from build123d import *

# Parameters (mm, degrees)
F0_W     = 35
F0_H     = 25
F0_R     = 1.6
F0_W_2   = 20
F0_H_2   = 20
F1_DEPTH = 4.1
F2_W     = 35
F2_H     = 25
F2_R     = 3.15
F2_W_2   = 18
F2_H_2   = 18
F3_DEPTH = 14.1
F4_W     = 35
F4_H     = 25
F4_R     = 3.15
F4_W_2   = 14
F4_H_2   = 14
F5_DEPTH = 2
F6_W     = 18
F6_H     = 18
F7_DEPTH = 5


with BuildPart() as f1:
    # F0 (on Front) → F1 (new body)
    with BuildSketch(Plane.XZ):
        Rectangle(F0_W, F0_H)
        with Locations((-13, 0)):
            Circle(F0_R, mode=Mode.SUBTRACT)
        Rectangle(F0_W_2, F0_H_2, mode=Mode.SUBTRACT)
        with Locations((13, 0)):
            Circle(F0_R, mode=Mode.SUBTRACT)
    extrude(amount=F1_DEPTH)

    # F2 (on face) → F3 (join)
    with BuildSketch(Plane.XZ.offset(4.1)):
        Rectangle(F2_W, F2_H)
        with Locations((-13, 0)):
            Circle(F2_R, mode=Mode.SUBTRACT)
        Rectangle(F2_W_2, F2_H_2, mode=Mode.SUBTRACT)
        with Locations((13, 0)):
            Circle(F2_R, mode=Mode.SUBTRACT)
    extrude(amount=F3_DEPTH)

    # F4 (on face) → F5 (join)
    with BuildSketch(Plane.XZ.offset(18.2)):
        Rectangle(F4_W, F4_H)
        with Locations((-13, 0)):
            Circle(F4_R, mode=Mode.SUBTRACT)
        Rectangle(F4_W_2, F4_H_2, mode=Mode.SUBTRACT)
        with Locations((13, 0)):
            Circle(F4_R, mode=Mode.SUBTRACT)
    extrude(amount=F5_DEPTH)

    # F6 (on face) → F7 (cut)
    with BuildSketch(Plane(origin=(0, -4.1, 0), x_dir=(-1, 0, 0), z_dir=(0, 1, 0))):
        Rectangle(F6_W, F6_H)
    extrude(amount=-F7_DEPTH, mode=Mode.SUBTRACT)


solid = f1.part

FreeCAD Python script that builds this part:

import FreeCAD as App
import Part
import Sketcher

V = App.Vector

doc = App.newDocument("Part")
params = doc.addObject("Spreadsheet::Sheet", "Params")
for row, (alias, value) in enumerate([
    ("sketch1_diameter", "3.2 mm"),
    ("sketch1_width", "35 mm"),
    ("sketch1_width2", "20 mm"),
    ("sketch1_height", "25 mm"),
    ("pad1_length", "4.1 mm"),
    ("sketch2_diameter", "6.3 mm"),
    ("sketch2_width", "35 mm"),
    ("sketch2_width2", "18 mm"),
    ("sketch2_height", "25 mm"),
    ("pad2_length", "14.1 mm"),
    ("sketch3_diameter", "6.3 mm"),
    ("sketch3_width", "35 mm"),
    ("sketch3_width2", "14 mm"),
    ("sketch3_height", "25 mm"),
    ("pad3_length", "2 mm"),
    ("sketch4_width", "18 mm"),
    ("pocket1_length", "5 mm"),
], start=1):
    params.set(f"A{row}", alias)
    params.set(f"B{row}", "=" + value)
    params.setAlias(f"B{row}", alias)

body = doc.addObject("PartDesign::Body", "Body")

sketch1 = body.newObject("Sketcher::SketchObject", "Sketch")
sketch1.AttachmentSupport = (doc.getObject("XZ_Plane"), [""])
sketch1.MapMode = "FlatFace"
sketch1.addGeometry([
    Part.LineSegment(V(-17.5, 12.5, 0), V(-17.5, -12.5, 0)),
    Part.LineSegment(V(-17.5, -12.5, 0), V(17.5, -12.5, 0)),
    Part.LineSegment(V(17.5, -12.5, 0), V(17.5, 12.5, 0)),
    Part.LineSegment(V(17.5, 12.5, 0), V(-17.5, 12.5, 0)),
    Part.Circle(V(-13, 0, 0), V(0, 0, 1), 1.6),
    Part.LineSegment(V(10, -10, 0), V(-10, -10, 0)),
    Part.LineSegment(V(-10, -10, 0), V(-10, 10, 0)),
    Part.LineSegment(V(-10, 10, 0), V(10, 10, 0)),
    Part.LineSegment(V(10, 10, 0), V(10, -10, 0)),
    Part.Circle(V(13, 0, 0), V(0, 0, 1), 1.6),
], False)
sketch1.addConstraint([
    Sketcher.Constraint("Coincident", 0, 2, 1, 1),
    Sketcher.Constraint("Coincident", 1, 2, 2, 1),
    Sketcher.Constraint("Coincident", 2, 2, 3, 1),
    Sketcher.Constraint("Coincident", 3, 2, 0, 1),
    Sketcher.Constraint("Coincident", 5, 2, 6, 1),
    Sketcher.Constraint("Coincident", 6, 2, 7, 1),
    Sketcher.Constraint("Coincident", 7, 2, 8, 1),
    Sketcher.Constraint("Coincident", 8, 2, 5, 1),
    Sketcher.Constraint("Vertical", 0),
    Sketcher.Constraint("Horizontal", 1),
    Sketcher.Constraint("Vertical", 2),
    Sketcher.Constraint("Horizontal", 3),
    Sketcher.Constraint("Horizontal", 5),
    Sketcher.Constraint("Vertical", 6),
    Sketcher.Constraint("Horizontal", 7),
    Sketcher.Constraint("Vertical", 8),
    Sketcher.Constraint("Equal", 4, 9),
    Sketcher.Constraint("Symmetric", 4, 3, 9, 3, -1, 1),
    Sketcher.Constraint("Symmetric", 0, 2, 2, 2, -1, 1),
    Sketcher.Constraint("Symmetric", 5, 2, 7, 2, -1, 1),
    Sketcher.Constraint("PointOnObject", 4, 3, -1),
    Sketcher.Constraint("Equal", 7, 6),
    Sketcher.Constraint("Diameter", 4, 3.2),
    Sketcher.Constraint("DistanceX", 1, 1, 1, 2, 35.0),
    Sketcher.Constraint("DistanceX", 5, 2, 5, 1, 20.0),
    Sketcher.Constraint("DistanceY", 0, 2, 0, 1, 25.0),
    Sketcher.Constraint("DistanceX", 4, 3, -1, 1, 13.0),
])
sketch1.setExpression("Constraints[22]", "Params.sketch1_diameter")
sketch1.setExpression("Constraints[23]", "Params.sketch1_width")
sketch1.setExpression("Constraints[24]", "Params.sketch1_width2")
sketch1.setExpression("Constraints[25]", "Params.sketch1_height")
pad1 = body.newObject("PartDesign::Pad", "Pad")
pad1.Profile = sketch1
pad1.setExpression("Length", "Params.pad1_length")

sketch2 = body.newObject("Sketcher::SketchObject", "Sketch001")
sketch2.AttachmentSupport = (doc.getObject("XZ_Plane"), [""])
sketch2.MapMode = "FlatFace"
sketch2.AttachmentOffset = App.Placement(V(0, 0, 4.1), App.Rotation())
sketch2.addGeometry([
    Part.LineSegment(V(-17.5, 12.5, 0), V(-17.5, -12.5, 0)),
    Part.LineSegment(V(-17.5, -12.5, 0), V(17.5, -12.5, 0)),
    Part.LineSegment(V(17.5, -12.5, 0), V(17.5, 12.5, 0)),
    Part.LineSegment(V(17.5, 12.5, 0), V(-17.5, 12.5, 0)),
    Part.Circle(V(-13, 0, 0), V(0, 0, 1), 3.1),
    Part.LineSegment(V(9, -9, 0), V(-9, -9, 0)),
    Part.LineSegment(V(-9, -9, 0), V(-9, 9, 0)),
    Part.LineSegment(V(-9, 9, 0), V(9, 9, 0)),
    Part.LineSegment(V(9, 9, 0), V(9, -9, 0)),
    Part.Circle(V(13, 0, 0), V(0, 0, 1), 3.1),
], False)
sketch2.addConstraint([
    Sketcher.Constraint("Coincident", 0, 2, 1, 1),
    Sketcher.Constraint("Coincident", 1, 2, 2, 1),
    Sketcher.Constraint("Coincident", 2, 2, 3, 1),
    Sketcher.Constraint("Coincident", 3, 2, 0, 1),
    Sketcher.Constraint("Coincident", 5, 2, 6, 1),
    Sketcher.Constraint("Coincident", 6, 2, 7, 1),
    Sketcher.Constraint("Coincident", 7, 2, 8, 1),
    Sketcher.Constraint("Coincident", 8, 2, 5, 1),
    Sketcher.Constraint("Vertical", 0),
    Sketcher.Constraint("Horizontal", 1),
    Sketcher.Constraint("Vertical", 2),
    Sketcher.Constraint("Horizontal", 3),
    Sketcher.Constraint("Horizontal", 5),
    Sketcher.Constraint("Vertical", 6),
    Sketcher.Constraint("Horizontal", 7),
    Sketcher.Constraint("Vertical", 8),
    Sketcher.Constraint("Equal", 4, 9),
    Sketcher.Constraint("Symmetric", 4, 3, 9, 3, -1, 1),
    Sketcher.Constraint("Symmetric", 0, 2, 2, 2, -1, 1),
    Sketcher.Constraint("Symmetric", 5, 2, 7, 2, -1, 1),
    Sketcher.Constraint("PointOnObject", 4, 3, -1),
    Sketcher.Constraint("Equal", 7, 6),
    Sketcher.Constraint("Diameter", 4, 6.3),
    Sketcher.Constraint("DistanceX", 1, 1, 1, 2, 35.0),
    Sketcher.Constraint("DistanceX", 5, 2, 5, 1, 18.0),
    Sketcher.Constraint("DistanceY", 0, 2, 0, 1, 25.0),
    Sketcher.Constraint("DistanceX", 4, 3, -1, 1, 13.0),
])
sketch2.setExpression("Constraints[22]", "Params.sketch2_diameter")
sketch2.setExpression("Constraints[23]", "Params.sketch2_width")
sketch2.setExpression("Constraints[24]", "Params.sketch2_width2")
sketch2.setExpression("Constraints[25]", "Params.sketch2_height")
pad2 = body.newObject("PartDesign::Pad", "Pad001")
pad2.Profile = sketch2
pad2.setExpression("Length", "Params.pad2_length")

sketch3 = body.newObject("Sketcher::SketchObject", "Sketch002")
sketch3.AttachmentSupport = (doc.getObject("XZ_Plane"), [""])
sketch3.MapMode = "FlatFace"
sketch3.AttachmentOffset = App.Placement(V(0, 0, 18.2), App.Rotation())
sketch3.addGeometry([
    Part.LineSegment(V(-17.5, 12.5, 0), V(-17.5, -12.5, 0)),
    Part.LineSegment(V(-17.5, -12.5, 0), V(17.5, -12.5, 0)),
    Part.LineSegment(V(17.5, -12.5, 0), V(17.5, 12.5, 0)),
    Part.LineSegment(V(17.5, 12.5, 0), V(-17.5, 12.5, 0)),
    Part.Circle(V(-13, 0, 0), V(0, 0, 1), 3.1),
    Part.LineSegment(V(7, -7, 0), V(-7, -7, 0)),
    Part.LineSegment(V(-7, -7, 0), V(-7, 7, 0)),
    Part.LineSegment(V(-7, 7, 0), V(7, 7, 0)),
    Part.LineSegment(V(7, 7, 0), V(7, -7, 0)),
    Part.Circle(V(13, 0, 0), V(0, 0, 1), 3.1),
], False)
sketch3.addConstraint([
    Sketcher.Constraint("Coincident", 0, 2, 1, 1),
    Sketcher.Constraint("Coincident", 1, 2, 2, 1),
    Sketcher.Constraint("Coincident", 2, 2, 3, 1),
    Sketcher.Constraint("Coincident", 3, 2, 0, 1),
    Sketcher.Constraint("Coincident", 5, 2, 6, 1),
    Sketcher.Constraint("Coincident", 6, 2, 7, 1),
    Sketcher.Constraint("Coincident", 7, 2, 8, 1),
    Sketcher.Constraint("Coincident", 8, 2, 5, 1),
    Sketcher.Constraint("Vertical", 0),
    Sketcher.Constraint("Horizontal", 1),
    Sketcher.Constraint("Vertical", 2),
    Sketcher.Constraint("Horizontal", 3),
    Sketcher.Constraint("Horizontal", 5),
    Sketcher.Constraint("Vertical", 6),
    Sketcher.Constraint("Horizontal", 7),
    Sketcher.Constraint("Vertical", 8),
    Sketcher.Constraint("Equal", 4, 9),
    Sketcher.Constraint("Symmetric", 4, 3, 9, 3, -1, 1),
    Sketcher.Constraint("Symmetric", 0, 2, 2, 2, -1, 1),
    Sketcher.Constraint("Symmetric", 5, 2, 7, 2, -1, 1),
    Sketcher.Constraint("PointOnObject", 4, 3, -1),
    Sketcher.Constraint("Equal", 7, 6),
    Sketcher.Constraint("Diameter", 4, 6.3),
    Sketcher.Constraint("DistanceX", 1, 1, 1, 2, 35.0),
    Sketcher.Constraint("DistanceX", 5, 2, 5, 1, 14.0),
    Sketcher.Constraint("DistanceY", 0, 2, 0, 1, 25.0),
    Sketcher.Constraint("DistanceX", 4, 3, -1, 1, 13.0),
])
sketch3.setExpression("Constraints[22]", "Params.sketch3_diameter")
sketch3.setExpression("Constraints[23]", "Params.sketch3_width")
sketch3.setExpression("Constraints[24]", "Params.sketch3_width2")
sketch3.setExpression("Constraints[25]", "Params.sketch3_height")
pad3 = body.newObject("PartDesign::Pad", "Pad002")
pad3.Profile = sketch3
pad3.setExpression("Length", "Params.pad3_length")

sketch4 = body.newObject("Sketcher::SketchObject", "Sketch003")
sketch4.AttachmentSupport = (doc.getObject("XZ_Plane"), [""])
sketch4.MapMode = "FlatFace"
sketch4.AttachmentOffset = App.Placement(V(0, 0, 4.1), App.Rotation())
sketch4.addGeometry([
    Part.LineSegment(V(9, 9, 0), V(9, -9, 0)),
    Part.LineSegment(V(9, -9, 0), V(-9, -9, 0)),
    Part.LineSegment(V(-9, -9, 0), V(-9, 9, 0)),
    Part.LineSegment(V(-9, 9, 0), V(9, 9, 0)),
], False)
sketch4.addConstraint([
    Sketcher.Constraint("Coincident", 0, 2, 1, 1),
    Sketcher.Constraint("Coincident", 1, 2, 2, 1),
    Sketcher.Constraint("Coincident", 2, 2, 3, 1),
    Sketcher.Constraint("Coincident", 3, 2, 0, 1),
    Sketcher.Constraint("Vertical", 0),
    Sketcher.Constraint("Horizontal", 1),
    Sketcher.Constraint("Vertical", 2),
    Sketcher.Constraint("Horizontal", 3),
    Sketcher.Constraint("Symmetric", 0, 2, 2, 2, -1, 1),
    Sketcher.Constraint("Equal", 3, 0),
    Sketcher.Constraint("DistanceX", 1, 2, 1, 1, 18.0),
])
sketch4.setExpression("Constraints[10]", "Params.sketch4_width")
pocket1 = body.newObject("PartDesign::Pocket", "Pocket")
pocket1.Profile = sketch4
pocket1.setExpression("Length", "Params.pocket1_length")
pocket1.Reversed = True

doc.recompute()
